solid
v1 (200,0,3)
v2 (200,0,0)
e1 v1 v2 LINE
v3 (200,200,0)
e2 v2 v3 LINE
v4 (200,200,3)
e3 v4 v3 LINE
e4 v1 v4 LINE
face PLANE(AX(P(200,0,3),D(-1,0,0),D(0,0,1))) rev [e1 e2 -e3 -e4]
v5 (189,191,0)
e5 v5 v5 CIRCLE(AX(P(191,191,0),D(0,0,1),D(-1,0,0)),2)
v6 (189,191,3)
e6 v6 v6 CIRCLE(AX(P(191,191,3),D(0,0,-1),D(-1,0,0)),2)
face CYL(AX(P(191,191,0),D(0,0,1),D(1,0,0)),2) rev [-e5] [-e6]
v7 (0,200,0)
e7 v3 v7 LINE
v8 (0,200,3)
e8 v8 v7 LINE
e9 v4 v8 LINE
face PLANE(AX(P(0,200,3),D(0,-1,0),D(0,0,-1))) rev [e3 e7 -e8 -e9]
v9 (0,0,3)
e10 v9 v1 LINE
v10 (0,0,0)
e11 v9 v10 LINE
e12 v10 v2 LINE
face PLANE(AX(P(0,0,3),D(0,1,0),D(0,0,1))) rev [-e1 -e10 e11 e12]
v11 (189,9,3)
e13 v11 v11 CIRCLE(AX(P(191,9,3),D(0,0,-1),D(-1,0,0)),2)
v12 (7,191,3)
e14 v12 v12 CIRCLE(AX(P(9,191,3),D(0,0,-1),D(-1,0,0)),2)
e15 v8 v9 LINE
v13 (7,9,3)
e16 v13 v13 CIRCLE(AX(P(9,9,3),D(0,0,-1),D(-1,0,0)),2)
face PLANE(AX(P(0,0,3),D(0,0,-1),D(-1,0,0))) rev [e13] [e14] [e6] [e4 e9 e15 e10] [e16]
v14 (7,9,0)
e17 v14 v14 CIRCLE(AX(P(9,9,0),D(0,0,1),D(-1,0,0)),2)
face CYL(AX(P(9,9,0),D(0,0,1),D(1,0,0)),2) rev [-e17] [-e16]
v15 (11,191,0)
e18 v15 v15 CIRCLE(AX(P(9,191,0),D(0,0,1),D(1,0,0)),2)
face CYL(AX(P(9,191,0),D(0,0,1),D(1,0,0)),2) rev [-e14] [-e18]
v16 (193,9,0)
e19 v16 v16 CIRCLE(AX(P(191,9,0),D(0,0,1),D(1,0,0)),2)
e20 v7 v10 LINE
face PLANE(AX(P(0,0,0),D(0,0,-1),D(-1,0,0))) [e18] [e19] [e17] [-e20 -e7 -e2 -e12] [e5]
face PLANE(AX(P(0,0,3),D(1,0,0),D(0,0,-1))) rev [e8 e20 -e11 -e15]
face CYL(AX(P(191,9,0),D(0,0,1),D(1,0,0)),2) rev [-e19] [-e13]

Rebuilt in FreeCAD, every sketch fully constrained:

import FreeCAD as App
import Part
import Sketcher
Q = App.Units.Quantity

doc = App.newDocument("Part")
body = doc.addObject("PartDesign::Body", "Body")

sketch1 = body.newObject("Sketcher::SketchObject", "Sketch")
sketch1.AttachmentSupport = (doc.getObject("XY_Plane"), [""])
sketch1.MapMode = "FlatFace"
sketch1.addGeometry([
    Part.LineSegment(App.Vector(0, 200, 0), App.Vector(0, 0, 0)),
    Part.LineSegment(App.Vector(0, 0, 0), App.Vector(200, 0, 0)),
    Part.LineSegment(App.Vector(200, 0, 0), App.Vector(200, 200, 0)),
    Part.LineSegment(App.Vector(200, 200, 0), App.Vector(0, 200, 0)),
], False)
sketch1.addConstraint([
    Sketcher.Constraint("Coincident", 0, 2, 1, 1),
    Sketcher.Constraint("Coincident", 1, 2, 2, 1),
    Sketcher.Constraint("Coincident", 2, 2, 3, 1),
    Sketcher.Constraint("Coincident", 3, 2, 0, 1),
    Sketcher.Constraint("Vertical", 0),
    Sketcher.Constraint("Horizontal", 1),
    Sketcher.Constraint("Vertical", 2),
    Sketcher.Constraint("Horizontal", 3),
    Sketcher.Constraint("Coincident", 0, 2, -1, 1),
    Sketcher.Constraint("Equal", 3, 0),
    Sketcher.Constraint("DistanceX", 1, 1, 1, 2, Q("200 mm")),
])
pad1 = body.newObject("PartDesign::Pad", "Pad")
pad1.Profile = sketch1
pad1.Length = 3

sketch2 = body.newObject("Sketcher::SketchObject", "Sketch001")
sketch2.AttachmentSupport = (doc.getObject("XY_Plane"), [""])
sketch2.MapMode = "FlatFace"
sketch2.AttachmentOffset = App.Placement(App.Vector(0, 0, 3), App.Rotation())
sketch2.addGeometry([
    Part.Circle(App.Vector(9, 191, 0), App.Vector(0, 0, 1), 2),
    Part.Circle(App.Vector(191, 191, 0), App.Vector(0, 0, 1), 2),
    Part.Circle(App.Vector(191, 9, 0), App.Vector(0, 0, 1), 2),
    Part.Circle(App.Vector(9, 9, 0), App.Vector(0, 0, 1), 2),
], False)
sketch2.addConstraint([
    Sketcher.Constraint("Equal", 0, 1),
    Sketcher.Constraint("Equal", 1, 2),
    Sketcher.Constraint("Equal", 2, 3),
    Sketcher.Constraint("Horizontal", 0, 3, 1, 3),
    Sketcher.Constraint("Horizontal", 2, 3, 3, 3),
    Sketcher.Constraint("Vertical", 1, 3, 2, 3),
    Sketcher.Constraint("Vertical", 0, 3, 3, 3),
    Sketcher.Constraint("Diameter", 0, Q("4 mm")),
    Sketcher.Constraint("DistanceX", -1, 1, 0, 3, Q("9 mm")),
    Sketcher.Constraint("DistanceY", -1, 1, 0, 3, Q("191 mm")),
    Sketcher.Constraint("DistanceX", -1, 1, 1, 3, Q("191 mm")),
    Sketcher.Constraint("DistanceY", -1, 1, 2, 3, Q("9 mm")),
])
pocket1 = body.newObject("PartDesign::Pocket", "Pocket")
pocket1.Profile = sketch2
pocket1.Type = "ThroughAll"
pocket1.Midplane = True

doc.recompute()
